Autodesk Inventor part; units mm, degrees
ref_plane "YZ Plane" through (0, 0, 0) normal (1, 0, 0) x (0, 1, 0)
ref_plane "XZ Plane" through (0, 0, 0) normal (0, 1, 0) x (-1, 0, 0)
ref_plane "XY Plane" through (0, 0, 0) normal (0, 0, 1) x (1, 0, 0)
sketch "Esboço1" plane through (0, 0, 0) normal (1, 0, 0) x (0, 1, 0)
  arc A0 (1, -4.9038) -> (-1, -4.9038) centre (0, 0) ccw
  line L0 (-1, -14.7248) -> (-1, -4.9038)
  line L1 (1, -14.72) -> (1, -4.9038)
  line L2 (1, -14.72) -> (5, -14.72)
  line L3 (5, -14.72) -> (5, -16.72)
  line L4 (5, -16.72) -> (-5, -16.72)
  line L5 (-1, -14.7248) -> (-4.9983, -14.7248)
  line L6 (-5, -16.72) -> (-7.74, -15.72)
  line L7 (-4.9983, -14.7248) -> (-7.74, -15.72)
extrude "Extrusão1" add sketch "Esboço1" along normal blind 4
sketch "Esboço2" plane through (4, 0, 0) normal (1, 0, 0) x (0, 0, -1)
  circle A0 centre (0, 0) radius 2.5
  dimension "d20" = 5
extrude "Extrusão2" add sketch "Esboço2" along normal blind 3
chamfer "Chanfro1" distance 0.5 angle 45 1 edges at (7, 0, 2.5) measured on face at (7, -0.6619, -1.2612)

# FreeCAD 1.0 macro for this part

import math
import FreeCAD as App
import Part
import Sketcher

V = App.Vector
Q = App.Units.Quantity


def edges_at(feature, points):
    """Names of the edges that pass closest to the given points."""
    edges = feature.Shape.Edges
    near = lambda p: min(range(len(edges)), key=lambda i: edges[i].distToShape(Part.Vertex(*p))[0])
    return sorted({f"Edge{near(p) + 1}" for p in points})

doc = App.newDocument("Part")
body = doc.addObject("PartDesign::Body", "Body")

# Sketch on YZ plane
sketch1 = body.newObject("Sketcher::SketchObject", "Sketch")
sketch1.AttachmentSupport = (doc.getObject("YZ_Plane"), [""])
sketch1.MapMode = "FlatFace"
sketch1.addGeometry(Part.LineSegment(V(1, -14.72, 0), V(1, -4.9038, 0)), False)
sketch1.addGeometry(Part.ArcOfCircle(Part.Circle(V(0, 0, 0), V(0, 0, 1), 5.004723), math.radians(-78.474078), math.radians(258.474078)), False)
sketch1.addGeometry(Part.LineSegment(V(-1, -4.9038, 0), V(-1, -14.7248, 0)), False)
sketch1.addGeometry(Part.LineSegment(V(-1, -14.7248, 0), V(-4.9983, -14.7248, 0)), False)
sketch1.addGeometry(Part.LineSegment(V(-4.9983, -14.7248, 0), V(-7.74, -15.72, 0)), False)
sketch1.addGeometry(Part.LineSegment(V(-7.74, -15.72, 0), V(-5, -16.72, 0)), False)
sketch1.addGeometry(Part.LineSegment(V(-5, -16.72, 0), V(5, -16.72, 0)), False)
sketch1.addGeometry(Part.LineSegment(V(5, -16.72, 0), V(5, -14.72, 0)), False)
sketch1.addGeometry(Part.LineSegment(V(5, -14.72, 0), V(1, -14.72, 0)), False)
sketch1.addConstraint(Sketcher.Constraint("Coincident", 0, 2, 1, 1))
sketch1.addConstraint(Sketcher.Constraint("Coincident", 1, 2, 2, 1))
sketch1.addConstraint(Sketcher.Constraint("Coincident", 2, 2, 3, 1))
sketch1.addConstraint(Sketcher.Constraint("Coincident", 3, 2, 4, 1))
sketch1.addConstraint(Sketcher.Constraint("Coincident", 4, 2, 5, 1))
sketch1.addConstraint(Sketcher.Constraint("Coincident", 5, 2, 6, 1))
sketch1.addConstraint(Sketcher.Constraint("Coincident", 6, 2, 7, 1))
sketch1.addConstraint(Sketcher.Constraint("Coincident", 7, 2, 8, 1))
sketch1.addConstraint(Sketcher.Constraint("Coincident", 8, 2, 0, 1))
sketch1.addConstraint(Sketcher.Constraint("Vertical", 0))
sketch1.addConstraint(Sketcher.Constraint("Vertical", 2))
sketch1.addConstraint(Sketcher.Constraint("Horizontal", 3))
sketch1.addConstraint(Sketcher.Constraint("Horizontal", 6))
sketch1.addConstraint(Sketcher.Constraint("Vertical", 7))
sketch1.addConstraint(Sketcher.Constraint("Horizontal", 8))
sketch1.addConstraint(Sketcher.Constraint("Coincident", 1, 3, -1, 1))
sketch1.addConstraint(Sketcher.Constraint("Horizontal", 0, 2, 1, 2))
sketch1.addConstraint(Sketcher.Constraint("Equal", 4, 5))
sketch1.addConstraint(Sketcher.Constraint("DistanceX", 6, 1, 6, 2, Q("10 mm")))
sketch1.addConstraint(Sketcher.Constraint("DistanceX", 8, 2, 8, 1, Q("4 mm")))
sketch1.addConstraint(Sketcher.Constraint("DistanceY", 7, 1, 7, 2, Q("2 mm")))
sketch1.addConstraint(Sketcher.Constraint("DistanceX", -1, 1, 0, 2, Q("1 mm")))
sketch1.addConstraint(Sketcher.Constraint("DistanceY", 5, 2, 4, 2, Q("1 mm")))
sketch1.addConstraint(Sketcher.Constraint("Angle", 4, Q("-160.0498 deg")))
sketch1.addConstraint(Sketcher.Constraint("Angle", 5, Q("-20.0502 deg")))
sketch1.addConstraint(Sketcher.Constraint("Radius", 1, Q("5.0047 mm")))
sketch1.addConstraint(Sketcher.Constraint("DistanceY", 2, 2, 2, 1, Q("9.821 mm")))
pad1 = body.newObject("PartDesign::Pad", "Pad")
pad1.Profile = sketch1
pad1.Length = 4

# Sketch on YZ plane
sketch2 = body.newObject("Sketcher::SketchObject", "Sketch001")
sketch2.AttachmentSupport = (doc.getObject("YZ_Plane"), [""])
sketch2.MapMode = "FlatFace"
sketch2.AttachmentOffset = App.Placement(V(0, 0, 4), App.Rotation())
sketch2.addGeometry(Part.Circle(V(0, 0, 0), V(0, 0, 1), 2.5), False)
sketch2.addConstraint(Sketcher.Constraint("Coincident", 0, 3, -1, 1))
sketch2.addConstraint(Sketcher.Constraint("Diameter", 0, Q("5 mm")))
pad2 = body.newObject("PartDesign::Pad", "Pad001")
pad2.Profile = sketch2
pad2.Length = 3
doc.recompute()

chamfer = body.newObject("PartDesign::Chamfer", "Chamfer")
chamfer.Base = (pad2, edges_at(pad2, [(7, 0, 2.5)]))
chamfer.Size = 0.5

doc.recompute()
